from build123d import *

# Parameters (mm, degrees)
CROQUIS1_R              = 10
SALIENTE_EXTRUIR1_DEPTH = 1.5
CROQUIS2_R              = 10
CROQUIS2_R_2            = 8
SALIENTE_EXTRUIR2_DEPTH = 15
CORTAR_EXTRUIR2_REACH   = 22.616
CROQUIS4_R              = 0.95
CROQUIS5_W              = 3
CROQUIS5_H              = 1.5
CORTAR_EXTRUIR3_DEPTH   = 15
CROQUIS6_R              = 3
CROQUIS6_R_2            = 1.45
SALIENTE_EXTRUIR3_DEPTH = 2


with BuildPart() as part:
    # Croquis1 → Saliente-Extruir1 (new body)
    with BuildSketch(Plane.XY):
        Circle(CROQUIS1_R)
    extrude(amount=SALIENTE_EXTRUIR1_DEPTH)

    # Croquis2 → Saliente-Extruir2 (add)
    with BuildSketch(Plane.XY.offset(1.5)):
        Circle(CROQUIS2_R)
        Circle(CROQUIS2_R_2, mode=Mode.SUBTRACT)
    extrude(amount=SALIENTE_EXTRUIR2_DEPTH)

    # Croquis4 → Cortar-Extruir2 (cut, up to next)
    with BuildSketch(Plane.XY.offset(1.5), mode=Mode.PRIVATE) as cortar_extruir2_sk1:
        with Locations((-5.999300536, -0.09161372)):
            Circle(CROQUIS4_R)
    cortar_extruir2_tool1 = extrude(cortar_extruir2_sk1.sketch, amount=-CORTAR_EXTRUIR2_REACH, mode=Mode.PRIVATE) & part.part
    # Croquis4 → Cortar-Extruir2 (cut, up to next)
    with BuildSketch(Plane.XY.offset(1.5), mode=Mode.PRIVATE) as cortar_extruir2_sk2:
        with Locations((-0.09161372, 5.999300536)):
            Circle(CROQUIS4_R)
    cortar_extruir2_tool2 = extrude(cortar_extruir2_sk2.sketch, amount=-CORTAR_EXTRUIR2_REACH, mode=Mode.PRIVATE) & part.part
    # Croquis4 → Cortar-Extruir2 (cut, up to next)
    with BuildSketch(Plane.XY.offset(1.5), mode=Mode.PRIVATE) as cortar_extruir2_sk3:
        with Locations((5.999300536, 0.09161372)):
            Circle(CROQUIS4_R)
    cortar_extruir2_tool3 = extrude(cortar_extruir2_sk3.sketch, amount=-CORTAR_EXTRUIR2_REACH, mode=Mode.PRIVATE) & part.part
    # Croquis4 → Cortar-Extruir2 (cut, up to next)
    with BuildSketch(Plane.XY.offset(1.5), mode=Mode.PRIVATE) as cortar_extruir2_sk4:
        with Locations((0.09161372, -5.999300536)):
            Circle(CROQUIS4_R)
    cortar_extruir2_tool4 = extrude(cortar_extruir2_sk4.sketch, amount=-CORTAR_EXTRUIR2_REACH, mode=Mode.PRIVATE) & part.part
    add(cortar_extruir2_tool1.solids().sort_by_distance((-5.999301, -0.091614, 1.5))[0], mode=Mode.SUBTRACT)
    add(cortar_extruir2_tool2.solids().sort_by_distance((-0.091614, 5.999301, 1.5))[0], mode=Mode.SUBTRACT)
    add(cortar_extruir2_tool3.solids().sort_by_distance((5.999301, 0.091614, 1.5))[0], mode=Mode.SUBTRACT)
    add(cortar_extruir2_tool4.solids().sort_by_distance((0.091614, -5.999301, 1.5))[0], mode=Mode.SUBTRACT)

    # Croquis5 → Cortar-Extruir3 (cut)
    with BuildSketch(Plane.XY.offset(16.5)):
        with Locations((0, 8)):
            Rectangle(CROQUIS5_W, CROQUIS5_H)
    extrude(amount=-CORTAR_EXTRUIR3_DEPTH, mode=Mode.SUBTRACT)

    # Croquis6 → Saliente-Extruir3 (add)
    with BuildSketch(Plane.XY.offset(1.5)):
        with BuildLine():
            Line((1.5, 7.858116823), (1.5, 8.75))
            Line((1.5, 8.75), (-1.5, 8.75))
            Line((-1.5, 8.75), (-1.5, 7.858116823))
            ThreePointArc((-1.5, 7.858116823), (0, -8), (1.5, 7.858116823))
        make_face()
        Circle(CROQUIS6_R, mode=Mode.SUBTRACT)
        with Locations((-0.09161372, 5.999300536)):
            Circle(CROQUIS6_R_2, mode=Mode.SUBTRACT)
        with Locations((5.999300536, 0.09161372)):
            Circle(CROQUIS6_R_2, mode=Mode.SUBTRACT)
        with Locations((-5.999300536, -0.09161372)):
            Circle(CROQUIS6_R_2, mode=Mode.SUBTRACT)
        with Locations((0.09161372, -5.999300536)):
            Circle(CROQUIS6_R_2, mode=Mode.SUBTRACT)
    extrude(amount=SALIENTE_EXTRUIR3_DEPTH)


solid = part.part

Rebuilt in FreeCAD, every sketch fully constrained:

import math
import FreeCAD as App
import Part
import Sketcher
from FreeCAD import Vector
Q = App.Units.Quantity

doc = App.newDocument("Part")
body = doc.addObject("PartDesign::Body", "Body")

sketch1 = body.newObject("Sketcher::SketchObject", "Sketch")
sketch1.AttachmentSupport = (doc.getObject("XY_Plane"), [""])
sketch1.MapMode = "FlatFace"
sketch1.addGeometry(Part.Circle(Vector(0, 0, 0), Vector(0, 0, 1), 10), False)
sketch1.addConstraint(Sketcher.Constraint("Coincident", 0, 3, -1, 1))
sketch1.addConstraint(Sketcher.Constraint("Diameter", 0, Q("20 mm")))
pad1 = body.newObject("PartDesign::Pad", "Pad")
pad1.Profile = sketch1
pad1.Length = 1.5

sketch2 = body.newObject("Sketcher::SketchObject", "Sketch001")
sketch2.AttachmentSupport = (doc.getObject("XY_Plane"), [""])
sketch2.MapMode = "FlatFace"
sketch2.AttachmentOffset = App.Placement(Vector(0, 0, 1.5), App.Rotation())
sketch2.addGeometry(Part.Circle(Vector(0, 0, 0), Vector(0, 0, 1), 10), False)
sketch2.addGeometry(Part.Circle(Vector(0, 0, 0), Vector(0, 0, 1), 8), False)
sketch2.addConstraint(Sketcher.Constraint("Coincident", 0, 3, -1, 1))
sketch2.addConstraint(Sketcher.Constraint("Coincident", 1, 3, -1, 1))
sketch2.addConstraint(Sketcher.Constraint("Diameter", 0, Q("20 mm")))
sketch2.addConstraint(Sketcher.Constraint("Diameter", 1, Q("16 mm")))
pad2 = body.newObject("PartDesign::Pad", "Pad001")
pad2.Profile = sketch2
pad2.Length = 15

sketch3 = body.newObject("Sketcher::SketchObject", "Sketch002")
sketch3.AttachmentSupport = (doc.getObject("XY_Plane"), [""])
sketch3.MapMode = "FlatFace"
sketch3.AttachmentOffset = App.Placement(Vector(0, 0, 1.5), App.Rotation())
sketch3.addGeometry(Part.Circle(Vector(-6, -0.1, 0), Vector(0, 0, 1), 0.9), False)
sketch3.addConstraint(Sketcher.Constraint("Diameter", 0, Q("1.9 mm")))
sketch3.addConstraint(Sketcher.Constraint("DistanceX", 0, 3, -1, 1, Q("5.999301 mm")))
sketch3.addConstraint(Sketcher.Constraint("DistanceY", 0, 3, -1, 1, Q("0.091614 mm")))
pocket1 = body.newObject("PartDesign::Pocket", "Pocket")
pocket1.Profile = sketch3
pocket1.Type = "UpToFirst"

sketch4 = body.newObject("Sketcher::SketchObject", "Sketch003")
sketch4.AttachmentSupport = (doc.getObject("XY_Plane"), [""])
sketch4.MapMode = "FlatFace"
sketch4.AttachmentOffset = App.Placement(Vector(0, 0, 1.5), App.Rotation())
sketch4.addGeometry(Part.Circle(Vector(-0.1, 6, 0), Vector(0, 0, 1), 0.9), False)
sketch4.addConstraint(Sketcher.Constraint("Diameter", 0, Q("1.9 mm")))
sketch4.addConstraint(Sketcher.Constraint("DistanceY", -1, 1, 0, 3, Q("5.999301 mm")))
sketch4.addConstraint(Sketcher.Constraint("DistanceX", 0, 3, -1, 1, Q("0.091614 mm")))
pocket2 = body.newObject("PartDesign::Pocket", "Pocket001")
pocket2.Profile = sketch4
pocket2.Type = "UpToFirst"

sketch5 = body.newObject("Sketcher::SketchObject", "Sketch004")
sketch5.AttachmentSupport = (doc.getObject("XY_Plane"), [""])
sketch5.MapMode = "FlatFace"
sketch5.AttachmentOffset = App.Placement(Vector(0, 0, 1.5), App.Rotation())
sketch5.addGeometry(Part.Circle(Vector(6, 0.1, 0), Vector(0, 0, 1), 0.9), False)
sketch5.addConstraint(Sketcher.Constraint("Diameter", 0, Q("1.9 mm")))
sketch5.addConstraint(Sketcher.Constraint("DistanceX", -1, 1, 0, 3, Q("5.999301 mm")))
sketch5.addConstraint(Sketcher.Constraint("DistanceY", -1, 1, 0, 3, Q("0.091614 mm")))
pocket3 = body.newObject("PartDesign::Pocket", "Pocket002")
pocket3.Profile = sketch5
pocket3.Type = "UpToFirst"

sketch6 = body.newObject("Sketcher::SketchObject", "Sketch005")
sketch6.AttachmentSupport = (doc.getObject("XY_Plane"), [""])
sketch6.MapMode = "FlatFace"
sketch6.AttachmentOffset = App.Placement(Vector(0, 0, 1.5), App.Rotation())
sketch6.addGeometry(Part.Circle(Vector(0.1, -6, 0), Vector(0, 0, 1), 0.9), False)
sketch6.addConstraint(Sketcher.Constraint("Diameter", 0, Q("1.9 mm")))
sketch6.addConstraint(Sketcher.Constraint("DistanceY", 0, 3, -1, 1, Q("5.999301 mm")))
sketch6.addConstraint(Sketcher.Constraint("DistanceX", -1, 1, 0, 3, Q("0.091614 mm")))
pocket4 = body.newObject("PartDesign::Pocket", "Pocket003")
pocket4.Profile = sketch6
pocket4.Type = "UpToFirst"

sketch7 = body.newObject("Sketcher::SketchObject", "Sketch006")
sketch7.AttachmentSupport = (doc.getObject("XY_Plane"), [""])
sketch7.MapMode = "FlatFace"
sketch7.AttachmentOffset = App.Placement(Vector(0, 0, 16.5), App.Rotation())
sketch7.addGeometry(Part.LineSegment(Vector(-1.5, 8.8, 0), Vector(-1.5, 7.2, 0)), False)
sketch7.addGeometry(Part.LineSegment(Vector(-1.5, 7.2, 0), Vector(1.5, 7.2, 0)), False)
sketch7.addGeometry(Part.LineSegment(Vector(1.5, 7.2, 0), Vector(1.5, 8.8, 0)), False)
sketch7.addGeometry(Part.LineSegment(Vector(1.5, 8.8, 0), Vector(-1.5, 8.8, 0)), False)
sketch7.addConstraint(Sketcher.Constraint("Coincident", 0, 2, 1, 1))
sketch7.addConstraint(Sketcher.Constraint("Coincident", 1, 2, 2, 1))
sketch7.addConstraint(Sketcher.Constraint("Coincident", 2, 2, 3, 1))
sketch7.addConstraint(Sketcher.Constraint("Coincident", 3, 2, 0, 1))
sketch7.addConstraint(Sketcher.Constraint("Vertical", 0))
sketch7.addConstraint(Sketcher.Constraint("Horizontal", 1))
sketch7.addConstraint(Sketcher.Constraint("Vertical", 2))
sketch7.addConstraint(Sketcher.Constraint("Horizontal", 3))
sketch7.addConstraint(Sketcher.Constraint("DistanceX", 1, 1, 1, 2, Q("3 mm")))
sketch7.addConstraint(Sketcher.Constraint("DistanceY", 0, 2, 0, 1, Q("1.5 mm")))
sketch7.addConstraint(Sketcher.Constraint("DistanceX", 0, 2, -1, 1, Q("1.5 mm")))
sketch7.addConstraint(Sketcher.Constraint("DistanceY", -1, 1, 0, 2, Q("7.25 mm")))
pocket5 = body.newObject("PartDesign::Pocket", "Pocket004")
pocket5.Profile = sketch7
pocket5.Length = 15

sketch8 = body.newObject("Sketcher::SketchObject", "Sketch007")
sketch8.AttachmentSupport = (doc.getObject("XY_Plane"), [""])
sketch8.MapMode = "FlatFace"
sketch8.AttachmentOffset = App.Placement(Vector(0, 0, 1.5), App.Rotation())
sketch8.addGeometry(Part.LineSegment(Vector(1.5, 7.9, 0), Vector(1.5, 8.8, 0)), False)
sketch8.addGeometry(Part.LineSegment(Vector(1.5, 8.8, 0), Vector(-1.5, 8.8, 0)), False)
sketch8.addGeometry(Part.LineSegment(Vector(-1.5, 8.8, 0), Vector(-1.5, 7.9, 0)), False)
sketch8.addGeometry(Part.ArcOfCircle(Part.Circle(Vector(0, 0, 0), Vector(0, 0, 1), 8), math.radians(101), math.radians(439)), False)
sketch8.addGeometry(Part.Circle(Vector(-6, -0.1, 0), Vector(0, 0, 1), 1.4), False)
sketch8.addGeometry(Part.Circle(Vector(0.1, -6, 0), Vector(0, 0, 1), 1.4), False)
sketch8.addGeometry(Part.Circle(Vector(-0.1, 6, 0), Vector(0, 0, 1), 1.4), False)
sketch8.addGeometry(Part.Circle(Vector(0, 0, 0), Vector(0, 0, 1), 3), False)
sketch8.addGeometry(Part.Circle(Vector(6, 0.1, 0), Vector(0, 0, 1), 1.4), False)
sketch8.addConstraint(Sketcher.Constraint("Coincident", 0, 2, 1, 1))
sketch8.addConstraint(Sketcher.Constraint("Coincident", 1, 2, 2, 1))
sketch8.addConstraint(Sketcher.Constraint("Coincident", 2, 2, 3, 1))
sketch8.addConstraint(Sketcher.Constraint("Coincident", 3, 2, 0, 1))
sketch8.addConstraint(Sketcher.Constraint("Vertical", 0))
sketch8.addConstraint(Sketcher.Constraint("Horizontal", 1))
sketch8.addConstraint(Sketcher.Constraint("Vertical", 2))
sketch8.addConstraint(Sketcher.Constraint("Coincident", 3, 3, -1, 1))
sketch8.addConstraint(Sketcher.Constraint("Coincident", 7, 3, -1, 1))
sketch8.addConstraint(Sketcher.Constraint("Equal", 4, 5))
sketch8.addConstraint(Sketcher.Constraint("Equal", 5, 6))
sketch8.addConstraint(Sketcher.Constraint("Equal", 6, 8))
sketch8.addConstraint(Sketcher.Constraint("Symmetric", 5, 3, 6, 3, -1, 1))
sketch8.addConstraint(Sketcher.Constraint("Symmetric", 4, 3, 8, 3, -1, 1))
sketch8.addConstraint(Sketcher.Constraint("Horizontal", 2, 2, 3, 2))
sketch8.addConstraint(Sketcher.Constraint("Diameter", 7, Q("6 mm")))
sketch8.addConstraint(Sketcher.Constraint("Radius", 3, Q("8 mm")))
sketch8.addConstraint(Sketcher.Constraint("Diameter", 4, Q("2.9 mm")))
sketch8.addConstraint(Sketcher.Constraint("DistanceX", 1, 2, 1, 1, Q("3 mm")))
sketch8.addConstraint(Sketcher.Constraint("DistanceY", -1, 1, 0, 2, Q("8.75 mm")))
sketch8.addConstraint(Sketcher.Constraint("DistanceX", 4, 3, -1, 1, Q("5.999301 mm")))
sketch8.addConstraint(Sketcher.Constraint("DistanceY", 5, 3, -1, 1, Q("5.999301 mm")))
sketch8.addConstraint(Sketcher.Constraint("DistanceY", 4, 3, -1, 1, Q("0.091614 mm")))
sketch8.addConstraint(Sketcher.Constraint("DistanceX", -1, 1, 5, 3, Q("0.091614 mm")))
pad3 = body.newObject("PartDesign::Pad", "Pad002")
pad3.Profile = sketch8
pad3.Length = 2

doc.recompute()
